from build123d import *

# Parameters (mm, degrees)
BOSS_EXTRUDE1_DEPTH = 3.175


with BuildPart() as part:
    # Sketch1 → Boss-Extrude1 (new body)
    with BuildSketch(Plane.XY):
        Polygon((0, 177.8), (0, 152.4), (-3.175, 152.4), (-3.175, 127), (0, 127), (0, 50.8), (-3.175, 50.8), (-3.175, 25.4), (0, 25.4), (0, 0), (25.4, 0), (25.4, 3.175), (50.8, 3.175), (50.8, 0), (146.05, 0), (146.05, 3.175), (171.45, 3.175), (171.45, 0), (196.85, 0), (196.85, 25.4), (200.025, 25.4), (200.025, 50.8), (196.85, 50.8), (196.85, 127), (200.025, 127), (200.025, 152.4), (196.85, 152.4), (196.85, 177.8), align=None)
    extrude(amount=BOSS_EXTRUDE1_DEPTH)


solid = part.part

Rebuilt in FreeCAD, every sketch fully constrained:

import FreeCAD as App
import Part
import Sketcher
from FreeCAD import Vector
Q = App.Units.Quantity


def add_polygon(sketch, points):
    """Adds a closed chain of lines whose ends are joined by coincident constraints."""
    first, n = sketch.GeometryCount, len(points)
    for a, b in zip(points, points[1:] + points[:1]):
        sketch.addGeometry(Part.LineSegment(App.Vector(*a, 0), App.Vector(*b, 0)), False)
    for i in range(n):
        sketch.addConstraint(Sketcher.Constraint("Coincident", first + i, 2, first + (i + 1) % n, 1))

doc = App.newDocument("Part")
params = doc.addObject("Spreadsheet::Sheet", "Params")
for row, (alias, value) in enumerate([
    ("sketch1_width", "1 in"),
    ("sketch1_height", "3 in"),
    ("sketch1_width2", "3.75 in"),
    ("sketch1_width3", "0.125 in"),
    ("pad1_length", "0.125 in"),
], start=1):
    params.set(f"A{row}", alias)
    params.set(f"B{row}", "=" + value)
    params.setAlias(f"B{row}", alias)

body = doc.addObject("PartDesign::Body", "Body")

sketch1 = body.newObject("Sketcher::SketchObject", "Sketch")
sketch1.AttachmentSupport = (doc.getObject("XY_Plane"), [""])
sketch1.MapMode = "FlatFace"
add_polygon(sketch1, [(0, 177.8), (0, 152.4), (-3.175, 152.4), (-3.175, 127), (0, 127), (0, 50.8), (-3.175, 50.8), (-3.175, 25.4), (0, 25.4), (0, 0), (25.4, 0), (25.4, 3.175), (50.8, 3.175), (50.8, 0), (146.05, 0), (146.05, 3.175), (171.45, 3.175), (171.45, 0), (196.85, 0), (196.85, 25.4), (200.025, 25.4), (200.025, 50.8), (196.85, 50.8), (196.85, 127), (200.025, 127), (200.025, 152.4), (196.85, 152.4), (196.85, 177.8)])
sketch1.addConstraint(Sketcher.Constraint("Vertical", 0))
sketch1.addConstraint(Sketcher.Constraint("Horizontal", 1))
sketch1.addConstraint(Sketcher.Constraint("Vertical", 2))
sketch1.addConstraint(Sketcher.Constraint("Horizontal", 3))
sketch1.addConstraint(Sketcher.Constraint("Vertical", 4))
sketch1.addConstraint(Sketcher.Constraint("Horizontal", 5))
sketch1.addConstraint(Sketcher.Constraint("Vertical", 6))
sketch1.addConstraint(Sketcher.Constraint("Horizontal", 7))
sketch1.addConstraint(Sketcher.Constraint("Vertical", 8))
sketch1.addConstraint(Sketcher.Constraint("Horizontal", 9))
sketch1.addConstraint(Sketcher.Constraint("Vertical", 10))
sketch1.addConstraint(Sketcher.Constraint("Horizontal", 11))
sketch1.addConstraint(Sketcher.Constraint("Vertical", 12))
sketch1.addConstraint(Sketcher.Constraint("Horizontal", 13))
sketch1.addConstraint(Sketcher.Constraint("Vertical", 14))
sketch1.addConstraint(Sketcher.Constraint("Horizontal", 15))
sketch1.addConstraint(Sketcher.Constraint("Vertical", 16))
sketch1.addConstraint(Sketcher.Constraint("Horizontal", 17))
sketch1.addConstraint(Sketcher.Constraint("Vertical", 18))
sketch1.addConstraint(Sketcher.Constraint("Horizontal", 19))
sketch1.addConstraint(Sketcher.Constraint("Vertical", 20))
sketch1.addConstraint(Sketcher.Constraint("Horizontal", 21))
sketch1.addConstraint(Sketcher.Constraint("Vertical", 22))
sketch1.addConstraint(Sketcher.Constraint("Horizontal", 23))
sketch1.addConstraint(Sketcher.Constraint("Vertical", 24))
sketch1.addConstraint(Sketcher.Constraint("Horizontal", 25))
sketch1.addConstraint(Sketcher.Constraint("Vertical", 26))
sketch1.addConstraint(Sketcher.Constraint("Horizontal", 27))
sketch1.addConstraint(Sketcher.Constraint("Coincident", 8, 2, -1, 1))
sketch1.addConstraint(Sketcher.Constraint("PointOnObject", 0, 2, -2))
sketch1.addConstraint(Sketcher.Constraint("PointOnObject", 3, 2, -2))
sketch1.addConstraint(Sketcher.Constraint("PointOnObject", 12, 2, -1))
sketch1.addConstraint(Sketcher.Constraint("PointOnObject", 16, 2, -1))
sketch1.addConstraint(Sketcher.Constraint("Horizontal", 11, 2, 14, 2))
sketch1.addConstraint(Sketcher.Constraint("Horizontal", 7, 2, 18, 2))
sketch1.addConstraint(Sketcher.Constraint("Horizontal", 5, 2, 20, 2))
sketch1.addConstraint(Sketcher.Constraint("Horizontal", 3, 2, 22, 2))
sketch1.addConstraint(Sketcher.Constraint("Horizontal", 1, 2, 24, 2))
sketch1.addConstraint(Sketcher.Constraint("Vertical", 2, 2, 5, 2))
sketch1.addConstraint(Sketcher.Constraint("Vertical", 18, 2, 21, 2))
sketch1.addConstraint(Sketcher.Constraint("Vertical", 20, 2, 23, 2))
sketch1.addConstraint(Sketcher.Constraint("Vertical", 22, 2, 25, 2))
sketch1.addConstraint(Sketcher.Constraint("Equal", 9, 11))
sketch1.addConstraint(Sketcher.Constraint("Equal", 11, 15))
sketch1.addConstraint(Sketcher.Constraint("Equal", 15, 17))
sketch1.addConstraint(Sketcher.Constraint("Equal", 7, 19))
sketch1.addConstraint(Sketcher.Constraint("Equal", 17, 0))
sketch1.addConstraint(Sketcher.Constraint("Equal", 0, 2))
sketch1.addConstraint(Sketcher.Constraint("Equal", 2, 6))
sketch1.addConstraint(Sketcher.Constraint("Equal", 6, 8))
sketch1.addConstraint(Sketcher.Constraint("Equal", 25, 10))
sketch1.addConstraint(Sketcher.Constraint("DistanceX", 9, 1, 9, 2, Q("1 in")))
sketch1.addConstraint(Sketcher.Constraint("DistanceY", 4, 2, 4, 1, Q("3 in")))
sketch1.addConstraint(Sketcher.Constraint("DistanceX", 13, 1, 13, 2, Q("3.75 in")))
sketch1.addConstraint(Sketcher.Constraint("DistanceX", 1, 2, 1, 1, Q("0.125 in")))
sketch1.setExpression("Constraints[79]", "Params.sketch1_width")
sketch1.setExpression("Constraints[80]", "Params.sketch1_height")
sketch1.setExpression("Constraints[81]", "Params.sketch1_width2")
sketch1.setExpression("Constraints[82]", "Params.sketch1_width3")
pad1 = body.newObject("PartDesign::Pad", "Pad")
pad1.Profile = sketch1
pad1.setExpression("Length", "Params.pad1_length")

doc.recompute()
